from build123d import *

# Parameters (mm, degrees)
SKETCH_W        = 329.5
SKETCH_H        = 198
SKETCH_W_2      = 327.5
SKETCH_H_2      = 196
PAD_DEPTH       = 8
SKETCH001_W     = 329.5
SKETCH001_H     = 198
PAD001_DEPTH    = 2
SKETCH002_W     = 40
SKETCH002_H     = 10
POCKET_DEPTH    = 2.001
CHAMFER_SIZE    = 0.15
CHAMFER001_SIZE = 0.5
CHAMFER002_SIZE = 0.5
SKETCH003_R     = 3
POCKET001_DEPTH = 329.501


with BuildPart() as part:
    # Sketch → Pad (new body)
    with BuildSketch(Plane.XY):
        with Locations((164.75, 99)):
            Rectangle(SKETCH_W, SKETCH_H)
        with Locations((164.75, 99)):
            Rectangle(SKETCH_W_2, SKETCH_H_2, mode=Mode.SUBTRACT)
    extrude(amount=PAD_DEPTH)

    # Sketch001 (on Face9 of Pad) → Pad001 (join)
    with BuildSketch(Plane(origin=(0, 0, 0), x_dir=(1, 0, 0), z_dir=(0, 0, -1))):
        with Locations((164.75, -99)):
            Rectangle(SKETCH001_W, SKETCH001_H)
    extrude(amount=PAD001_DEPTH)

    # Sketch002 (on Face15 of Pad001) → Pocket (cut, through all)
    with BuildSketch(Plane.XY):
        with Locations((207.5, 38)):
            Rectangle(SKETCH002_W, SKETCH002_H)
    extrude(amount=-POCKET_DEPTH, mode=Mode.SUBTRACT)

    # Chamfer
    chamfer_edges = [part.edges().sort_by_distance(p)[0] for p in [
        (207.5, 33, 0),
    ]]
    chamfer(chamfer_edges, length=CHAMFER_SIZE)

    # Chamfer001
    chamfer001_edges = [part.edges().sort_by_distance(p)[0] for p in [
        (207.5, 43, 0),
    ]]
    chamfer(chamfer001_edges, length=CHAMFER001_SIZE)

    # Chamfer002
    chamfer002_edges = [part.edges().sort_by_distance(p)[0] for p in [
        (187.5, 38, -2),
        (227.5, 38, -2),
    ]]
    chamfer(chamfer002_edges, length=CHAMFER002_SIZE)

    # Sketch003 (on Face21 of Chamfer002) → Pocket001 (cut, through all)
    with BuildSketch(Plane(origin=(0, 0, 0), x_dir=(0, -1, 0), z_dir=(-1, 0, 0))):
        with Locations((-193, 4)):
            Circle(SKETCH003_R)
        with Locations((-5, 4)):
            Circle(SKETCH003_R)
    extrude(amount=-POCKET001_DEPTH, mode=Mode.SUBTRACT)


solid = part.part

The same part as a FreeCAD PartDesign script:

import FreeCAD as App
import Part
import Sketcher
from FreeCAD import Vector


def edges_at(feature, points):
    """Names of the edges that pass closest to the given points."""
    edges = feature.Shape.Edges
    near = lambda p: min(range(len(edges)), key=lambda i: edges[i].distToShape(Part.Vertex(*p))[0])
    return sorted({f"Edge{near(p) + 1}" for p in points})

doc = App.newDocument("Part")
body = doc.addObject("PartDesign::Body", "Body")

# Sketch on XY plane
sketch1 = body.newObject("Sketcher::SketchObject", "Sketch")
sketch1.AttachmentSupport = (doc.getObject("XY_Plane"), [""])
sketch1.MapMode = "FlatFace"
sketch1.addGeometry([
    Part.LineSegment(Vector(0, 198, 0), Vector(0, 0, 0)),  # 0
    Part.LineSegment(Vector(0, 0, 0), Vector(330, 0, 0)),  # 1
    Part.LineSegment(Vector(330, 0, 0), Vector(330, 198, 0)),  # 2
    Part.LineSegment(Vector(330, 198, 0), Vector(0, 198, 0)),  # 3
    Part.LineSegment(Vector(328, 1, 0), Vector(1, 1, 0)),  # 4
    Part.LineSegment(Vector(1, 1, 0), Vector(1, 197, 0)),  # 5
    Part.LineSegment(Vector(1, 197, 0), Vector(328, 197, 0)),  # 6
    Part.LineSegment(Vector(328, 197, 0), Vector(328, 1, 0)),  # 7
], False)
sketch1.addConstraint([
    Sketcher.Constraint("Coincident", 0, 2, 1, 1),
    Sketcher.Constraint("Coincident", 1, 2, 2, 1),
    Sketcher.Constraint("Coincident", 2, 2, 3, 1),
    Sketcher.Constraint("Coincident", 3, 2, 0, 1),
    Sketcher.Constraint("Coincident", 4, 2, 5, 1),
    Sketcher.Constraint("Coincident", 5, 2, 6, 1),
    Sketcher.Constraint("Coincident", 6, 2, 7, 1),
    Sketcher.Constraint("Coincident", 7, 2, 4, 1),
    Sketcher.Constraint("Vertical", 0),
    Sketcher.Constraint("Horizontal", 1),
    Sketcher.Constraint("Vertical", 2),
    Sketcher.Constraint("Horizontal", 3),
    Sketcher.Constraint("Horizontal", 4),
    Sketcher.Constraint("Vertical", 5),
    Sketcher.Constraint("Horizontal", 6),
    Sketcher.Constraint("Vertical", 7),
    Sketcher.Constraint("Coincident", 0, 2, -1, 1),
    Sketcher.Constraint("DistanceY", 0, 2, 0, 1, 198.0),
    Sketcher.Constraint("DistanceY", 5, 1, 5, 2, 196.0),
    Sketcher.Constraint("DistanceX", 1, 1, 1, 2, 329.5),
    Sketcher.Constraint("DistanceX", 4, 2, 4, 1, 327.5),
    Sketcher.Constraint("DistanceX", -1, 1, 4, 2, 1.0),
    Sketcher.Constraint("DistanceY", -1, 1, 4, 2, 1.0),
])
pad1 = body.newObject("PartDesign::Pad", "Pad")
pad1.Profile = sketch1
pad1.Length = 8

# Sketch on XY plane
sketch2 = body.newObject("Sketcher::SketchObject", "Sketch001")
sketch2.AttachmentSupport = (doc.getObject("XY_Plane"), [""])
sketch2.MapMode = "FlatFace"
sketch2.addGeometry([
    Part.LineSegment(Vector(0, 0, 0), Vector(0, 198, 0)),
    Part.LineSegment(Vector(0, 198, 0), Vector(330, 198, 0)),
    Part.LineSegment(Vector(330, 198, 0), Vector(330, 0, 0)),
    Part.LineSegment(Vector(330, 0, 0), Vector(0, 0, 0)),
], False)
sketch2.addConstraint([
    Sketcher.Constraint("Coincident", 0, 2, 1, 1),
    Sketcher.Constraint("Coincident", 1, 2, 2, 1),
    Sketcher.Constraint("Coincident", 2, 2, 3, 1),
    Sketcher.Constraint("Coincident", 3, 2, 0, 1),
    Sketcher.Constraint("Vertical", 0),
    Sketcher.Constraint("Horizontal", 1),
    Sketcher.Constraint("Vertical", 2),
    Sketcher.Constraint("Horizontal", 3),
    Sketcher.Constraint("Coincident", 3, 2, -1, 1),
    Sketcher.Constraint("DistanceY", 0, 1, 0, 2, 198.0),
    Sketcher.Constraint("DistanceX", 1, 1, 1, 2, 329.5),
])
pad2 = body.newObject("PartDesign::Pad", "Pad001")
pad2.Profile = sketch2
pad2.Length = 2
pad2.Reversed = True

# Sketch on XY plane
sketch3 = body.newObject("Sketcher::SketchObject", "Sketch002")
sketch3.AttachmentSupport = (doc.getObject("XY_Plane"), [""])
sketch3.MapMode = "FlatFace"
sketch3.addGeometry([
    Part.LineSegment(Vector(188, 43, 0), Vector(188, 33, 0)),
    Part.LineSegment(Vector(188, 33, 0), Vector(228, 33, 0)),
    Part.LineSegment(Vector(228, 33, 0), Vector(228, 43, 0)),
    Part.LineSegment(Vector(228, 43, 0), Vector(188, 43, 0)),
], False)
sketch3.addConstraint([
    Sketcher.Constraint("Coincident", 0, 2, 1, 1),
    Sketcher.Constraint("Coincident", 1, 2, 2, 1),
    Sketcher.Constraint("Coincident", 2, 2, 3, 1),
    Sketcher.Constraint("Coincident", 3, 2, 0, 1),
    Sketcher.Constraint("Vertical", 0),
    Sketcher.Constraint("Horizontal", 1),
    Sketcher.Constraint("Vertical", 2),
    Sketcher.Constraint("Horizontal", 3),
    Sketcher.Constraint("DistanceX", 1, 1, 1, 2, 40.0),
    Sketcher.Constraint("DistanceY", 0, 2, 0, 1, 10.0),
    Sketcher.Constraint("DistanceY", -1, 1, 0, 2, 33.0),
    Sketcher.Constraint("DistanceX", -1, 1, 0, 2, 187.5),
])
pocket1 = body.newObject("PartDesign::Pocket", "Pocket")
pocket1.Profile = sketch3
pocket1.Type = "ThroughAll"
doc.recompute()

chamfer = body.newObject("PartDesign::Chamfer", "Chamfer")
chamfer.Base = (pocket1, edges_at(pocket1, [(207.5, 33, 0)]))
chamfer.Size = 0.15
doc.recompute()

chamfer2 = body.newObject("PartDesign::Chamfer", "Chamfer001")
chamfer2.Base = (chamfer, edges_at(chamfer, [(207.5, 43, 0)]))
chamfer2.Size = 0.5
doc.recompute()

chamfer3 = body.newObject("PartDesign::Chamfer", "Chamfer002")
chamfer3.Base = (chamfer2, edges_at(chamfer2, [(187.5, 38, -2), (227.5, 38, -2)]))
chamfer3.Size = 0.5

# Sketch on YZ plane
sketch4 = body.newObject("Sketcher::SketchObject", "Sketch003")
sketch4.AttachmentSupport = (doc.getObject("YZ_Plane"), [""])
sketch4.MapMode = "FlatFace"
sketch4.addGeometry([
    Part.Circle(Vector(193, 4, 0), Vector(0, 0, 1), 3),
    Part.Circle(Vector(5, 4, 0), Vector(0, 0, 1), 3),
], False)
sketch4.addConstraint([
    Sketcher.Constraint("Equal", 0, 1),
    Sketcher.Constraint("Horizontal", 0, 3, 1, 3),
    Sketcher.Constraint("Diameter", 0, 6.0),
    Sketcher.Constraint("DistanceX", -1, 1, 0, 3, 193.0),
    Sketcher.Constraint("DistanceY", -1, 1, 0, 3, 4.0),
    Sketcher.Constraint("DistanceX", -1, 1, 1, 3, 5.0),
])
pocket2 = body.newObject("PartDesign::Pocket", "Pocket001")
pocket2.Profile = sketch4
pocket2.Type = "ThroughAll"
pocket2.Reversed = True

doc.recompute()
